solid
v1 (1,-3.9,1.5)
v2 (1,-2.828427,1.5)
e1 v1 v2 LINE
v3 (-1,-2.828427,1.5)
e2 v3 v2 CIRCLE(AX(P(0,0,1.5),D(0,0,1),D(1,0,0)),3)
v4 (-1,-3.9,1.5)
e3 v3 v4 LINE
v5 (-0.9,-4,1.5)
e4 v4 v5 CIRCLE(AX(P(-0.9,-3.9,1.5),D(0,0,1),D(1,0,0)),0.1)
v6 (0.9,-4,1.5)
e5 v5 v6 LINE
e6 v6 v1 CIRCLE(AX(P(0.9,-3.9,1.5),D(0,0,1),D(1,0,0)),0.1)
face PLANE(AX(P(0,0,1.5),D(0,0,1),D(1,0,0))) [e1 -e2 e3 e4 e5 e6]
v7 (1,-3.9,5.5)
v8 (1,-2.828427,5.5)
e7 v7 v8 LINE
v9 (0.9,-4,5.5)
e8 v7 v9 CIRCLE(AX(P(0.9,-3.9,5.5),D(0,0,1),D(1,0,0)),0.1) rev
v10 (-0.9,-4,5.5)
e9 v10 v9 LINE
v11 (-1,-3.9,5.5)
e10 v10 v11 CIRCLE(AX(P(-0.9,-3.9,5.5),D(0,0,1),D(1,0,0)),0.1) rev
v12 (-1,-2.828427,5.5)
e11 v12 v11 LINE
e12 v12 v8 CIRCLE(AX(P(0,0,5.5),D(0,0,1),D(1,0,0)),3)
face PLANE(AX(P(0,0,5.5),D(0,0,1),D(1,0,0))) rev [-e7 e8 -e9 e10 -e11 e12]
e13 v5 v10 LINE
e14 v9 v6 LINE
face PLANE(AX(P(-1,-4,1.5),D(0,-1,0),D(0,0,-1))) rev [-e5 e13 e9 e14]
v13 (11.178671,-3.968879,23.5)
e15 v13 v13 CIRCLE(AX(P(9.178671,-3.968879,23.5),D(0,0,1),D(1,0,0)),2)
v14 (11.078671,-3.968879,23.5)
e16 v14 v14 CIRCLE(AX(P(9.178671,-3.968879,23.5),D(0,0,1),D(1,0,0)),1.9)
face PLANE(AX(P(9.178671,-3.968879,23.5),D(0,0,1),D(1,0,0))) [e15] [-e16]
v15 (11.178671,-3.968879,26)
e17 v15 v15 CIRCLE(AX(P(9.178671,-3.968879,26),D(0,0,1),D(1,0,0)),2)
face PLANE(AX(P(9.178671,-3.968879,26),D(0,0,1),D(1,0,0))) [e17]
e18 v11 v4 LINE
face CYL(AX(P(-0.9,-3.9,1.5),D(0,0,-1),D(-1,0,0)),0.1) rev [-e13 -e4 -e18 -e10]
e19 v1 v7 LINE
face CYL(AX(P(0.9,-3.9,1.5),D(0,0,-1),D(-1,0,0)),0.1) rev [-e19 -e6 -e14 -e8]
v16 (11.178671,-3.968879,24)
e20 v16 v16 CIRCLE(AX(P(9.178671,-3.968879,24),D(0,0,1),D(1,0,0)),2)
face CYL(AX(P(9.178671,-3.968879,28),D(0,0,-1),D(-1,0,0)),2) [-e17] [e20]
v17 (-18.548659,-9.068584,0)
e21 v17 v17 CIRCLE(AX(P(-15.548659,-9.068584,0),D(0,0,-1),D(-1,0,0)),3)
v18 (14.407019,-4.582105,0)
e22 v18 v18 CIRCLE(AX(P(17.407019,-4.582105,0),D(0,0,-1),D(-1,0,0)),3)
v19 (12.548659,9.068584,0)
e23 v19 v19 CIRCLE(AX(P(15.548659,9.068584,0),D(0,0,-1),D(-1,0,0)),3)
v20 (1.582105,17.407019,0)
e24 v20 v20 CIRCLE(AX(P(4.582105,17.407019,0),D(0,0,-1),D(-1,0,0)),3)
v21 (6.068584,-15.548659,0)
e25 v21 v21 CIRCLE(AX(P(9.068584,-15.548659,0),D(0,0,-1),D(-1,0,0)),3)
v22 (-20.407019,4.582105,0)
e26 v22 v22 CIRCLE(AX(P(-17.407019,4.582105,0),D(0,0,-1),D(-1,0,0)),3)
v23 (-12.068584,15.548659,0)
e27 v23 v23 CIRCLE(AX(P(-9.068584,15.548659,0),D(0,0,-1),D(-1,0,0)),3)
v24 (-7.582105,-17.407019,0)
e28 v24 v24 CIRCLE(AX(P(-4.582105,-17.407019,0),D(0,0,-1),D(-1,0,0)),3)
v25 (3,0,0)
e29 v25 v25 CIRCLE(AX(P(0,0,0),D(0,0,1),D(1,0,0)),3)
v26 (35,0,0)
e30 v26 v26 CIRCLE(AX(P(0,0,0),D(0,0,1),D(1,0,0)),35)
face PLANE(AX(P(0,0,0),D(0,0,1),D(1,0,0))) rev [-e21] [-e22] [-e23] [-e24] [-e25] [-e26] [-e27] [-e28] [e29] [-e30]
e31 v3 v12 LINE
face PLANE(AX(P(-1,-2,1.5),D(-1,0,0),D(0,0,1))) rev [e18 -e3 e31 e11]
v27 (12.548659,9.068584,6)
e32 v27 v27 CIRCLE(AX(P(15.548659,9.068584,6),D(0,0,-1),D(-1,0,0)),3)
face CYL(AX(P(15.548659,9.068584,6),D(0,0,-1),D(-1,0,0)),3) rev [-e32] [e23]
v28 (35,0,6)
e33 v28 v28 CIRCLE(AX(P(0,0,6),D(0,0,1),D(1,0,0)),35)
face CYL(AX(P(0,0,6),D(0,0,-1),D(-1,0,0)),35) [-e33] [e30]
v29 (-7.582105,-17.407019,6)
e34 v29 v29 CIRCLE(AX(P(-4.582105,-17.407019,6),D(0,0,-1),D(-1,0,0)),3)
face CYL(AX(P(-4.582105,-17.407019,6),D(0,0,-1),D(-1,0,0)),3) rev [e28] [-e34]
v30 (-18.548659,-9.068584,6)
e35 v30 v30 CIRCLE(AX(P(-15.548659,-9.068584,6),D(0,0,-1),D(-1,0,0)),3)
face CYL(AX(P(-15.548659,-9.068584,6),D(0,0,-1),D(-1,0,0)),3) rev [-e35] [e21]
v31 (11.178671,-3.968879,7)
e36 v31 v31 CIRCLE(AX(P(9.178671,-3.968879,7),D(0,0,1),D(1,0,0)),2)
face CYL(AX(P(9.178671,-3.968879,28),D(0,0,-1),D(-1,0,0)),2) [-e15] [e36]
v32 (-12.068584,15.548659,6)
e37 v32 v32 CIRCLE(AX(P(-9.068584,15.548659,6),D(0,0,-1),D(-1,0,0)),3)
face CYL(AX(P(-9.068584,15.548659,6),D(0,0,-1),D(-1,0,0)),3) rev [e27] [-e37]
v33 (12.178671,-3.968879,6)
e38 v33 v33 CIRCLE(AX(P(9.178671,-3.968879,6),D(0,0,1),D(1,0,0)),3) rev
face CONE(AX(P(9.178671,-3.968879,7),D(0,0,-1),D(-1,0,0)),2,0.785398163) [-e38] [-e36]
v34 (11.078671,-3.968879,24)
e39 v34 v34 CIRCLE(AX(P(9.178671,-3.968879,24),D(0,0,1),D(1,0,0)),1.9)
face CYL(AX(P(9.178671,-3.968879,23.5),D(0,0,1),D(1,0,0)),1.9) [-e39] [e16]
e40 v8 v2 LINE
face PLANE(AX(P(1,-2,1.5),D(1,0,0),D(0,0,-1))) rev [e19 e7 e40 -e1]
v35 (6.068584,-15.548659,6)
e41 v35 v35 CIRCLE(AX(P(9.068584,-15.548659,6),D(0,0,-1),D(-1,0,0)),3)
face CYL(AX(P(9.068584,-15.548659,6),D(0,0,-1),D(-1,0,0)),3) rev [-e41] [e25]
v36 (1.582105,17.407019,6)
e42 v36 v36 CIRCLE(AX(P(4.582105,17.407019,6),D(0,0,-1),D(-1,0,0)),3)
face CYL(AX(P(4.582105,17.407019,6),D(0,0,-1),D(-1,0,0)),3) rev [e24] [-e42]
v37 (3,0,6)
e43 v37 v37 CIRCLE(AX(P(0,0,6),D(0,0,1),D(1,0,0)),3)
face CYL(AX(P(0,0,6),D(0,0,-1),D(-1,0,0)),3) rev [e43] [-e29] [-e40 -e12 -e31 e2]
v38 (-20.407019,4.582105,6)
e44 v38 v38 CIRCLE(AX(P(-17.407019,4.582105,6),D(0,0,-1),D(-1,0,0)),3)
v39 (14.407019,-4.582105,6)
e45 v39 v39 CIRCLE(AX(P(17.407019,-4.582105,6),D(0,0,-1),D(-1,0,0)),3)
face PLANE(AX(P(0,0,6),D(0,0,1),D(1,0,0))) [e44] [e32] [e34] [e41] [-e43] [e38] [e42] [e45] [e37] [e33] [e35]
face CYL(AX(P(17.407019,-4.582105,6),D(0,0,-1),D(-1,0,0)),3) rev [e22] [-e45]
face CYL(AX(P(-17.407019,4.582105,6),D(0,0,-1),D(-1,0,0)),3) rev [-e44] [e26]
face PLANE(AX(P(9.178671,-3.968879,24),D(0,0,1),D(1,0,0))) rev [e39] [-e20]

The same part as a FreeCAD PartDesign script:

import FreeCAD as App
import Part
import Sketcher

V = App.Vector


def edges_at(feature, points):
    """Names of the edges that pass closest to the given points."""
    edges = feature.Shape.Edges
    near = lambda p: min(range(len(edges)), key=lambda i: edges[i].distToShape(Part.Vertex(*p))[0])
    return sorted({f"Edge{near(p) + 1}" for p in points})

doc = App.newDocument("Part")
params = doc.addObject("Spreadsheet::Sheet", "Params")
for row, (alias, value) in enumerate([
    ("sketch1_diameter", "70 mm"),
    ("sketch1_diameter2", "6 mm"),
    ("pad1_length", "6 mm"),
    ("sketch2_diameter", "6 mm"),
    ("sketch3_diameter", "4 mm"),
    ("pad2_length", "22 mm"),
    ("sketch4_diameter", "8 mm"),
    ("pad3_length", "2 mm"),
    ("chamfer_size", "1 mm"),
    ("sketch5_width", "2 mm"),
    ("pocket2_length", "4 mm"),
    ("fillet_radius", "0.1 mm"),
    ("sketch6_diameter", "8 mm"),
    ("pocket3_length", "2 mm"),
    ("sketch7_diameter", "4 mm"),
    ("sketch7_diameter2", "3.8 mm"),
    ("pocket4_length", "0.5 mm"),
], start=1):
    params.set(f"A{row}", alias)
    params.set(f"B{row}", "=" + value)
    params.setAlias(f"B{row}", alias)

body = doc.addObject("PartDesign::Body", "Body")

sketch1 = doc.addObject("Sketcher::SketchObject", "Sketch")
body.addObject(sketch1)
sketch1.AttachmentSupport = (doc.XY_Plane, [""])
sketch1.MapMode = "FlatFace"
sketch1.addGeometry([
    Part.Circle(V(0, 0, 0), V(0, 0, 1), 35),
    Part.Circle(V(0, 0, 0), V(0, 0, 1), 3),
], False)
sketch1.addConstraint([
    Sketcher.Constraint("Coincident", 0, 3, -1, 1),
    Sketcher.Constraint("Coincident", 1, 3, -1, 1),
    Sketcher.Constraint("Diameter", 0, 70.0),
    Sketcher.Constraint("Diameter", 1, 6.0),
])
sketch1.setExpression("Constraints[2]", "Params.sketch1_diameter")
sketch1.setExpression("Constraints[3]", "Params.sketch1_diameter2")
pad1 = doc.addObject("PartDesign::Pad", "Pad")
body.addObject(pad1)
pad1.Profile = sketch1
pad1.setExpression("Length", "Params.pad1_length")

sketch2 = doc.addObject("Sketcher::SketchObject", "Sketch001")
body.addObject(sketch2)
sketch2.AttachmentSupport = (doc.XY_Plane, [""])
sketch2.MapMode = "FlatFace"
sketch2.addGeometry([
    Part.Circle(V(4.6, 17.4, 0), V(0, 0, 1), 3),
    Part.Circle(V(-9.1, 15.5, 0), V(0, 0, 1), 3),
    Part.Circle(V(-17.4, 4.6, 0), V(0, 0, 1), 3),
    Part.Circle(V(-15.5, -9.1, 0), V(0, 0, 1), 3),
    Part.Circle(V(-4.6, -17.4, 0), V(0, 0, 1), 3),
    Part.Circle(V(9.1, -15.5, 0), V(0, 0, 1), 3),
    Part.Circle(V(17.4, -4.6, 0), V(0, 0, 1), 3),
    Part.Circle(V(15.5, 9.1, 0), V(0, 0, 1), 3),
], False)
sketch2.addConstraint([
    Sketcher.Constraint("Equal", 0, 1),
    Sketcher.Constraint("Equal", 1, 2),
    Sketcher.Constraint("Equal", 2, 3),
    Sketcher.Constraint("Equal", 3, 4),
    Sketcher.Constraint("Equal", 4, 5),
    Sketcher.Constraint("Equal", 5, 6),
    Sketcher.Constraint("Equal", 6, 7),
    Sketcher.Constraint("Symmetric", 0, 3, 4, 3, -1, 1),
    Sketcher.Constraint("Symmetric", 1, 3, 5, 3, -1, 1),
    Sketcher.Constraint("Symmetric", 2, 3, 6, 3, -1, 1),
    Sketcher.Constraint("Symmetric", 3, 3, 7, 3, -1, 1),
    Sketcher.Constraint("Diameter", 0, 6.0),
    Sketcher.Constraint("DistanceY", -1, 1, 0, 3, 17.407019),
    Sketcher.Constraint("DistanceY", -1, 1, 1, 3, 15.548659),
    Sketcher.Constraint("DistanceX", 2, 3, -1, 1, 17.407019),
    Sketcher.Constraint("DistanceX", 3, 3, -1, 1, 15.548659),
    Sketcher.Constraint("DistanceX", 1, 3, 0, 3, 13.650689),
    Sketcher.Constraint("DistanceY", 3, 3, 2, 3, 13.650689),
    Sketcher.Constraint("DistanceX", 1, 3, 4, 3, 4.486478),
    Sketcher.Constraint("DistanceY", 3, 3, 6, 3, 4.486478),
])
sketch2.setExpression("Constraints[11]", "Params.sketch2_diameter")
pocket1 = doc.addObject("PartDesign::Pocket", "Pocket")
body.addObject(pocket1)
pocket1.Profile = sketch2
pocket1.Type = "ThroughAll"
pocket1.Reversed = True

sketch3 = doc.addObject("Sketcher::SketchObject", "Sketch002")
body.addObject(sketch3)
sketch3.AttachmentSupport = (doc.XY_Plane, [""])
sketch3.MapMode = "FlatFace"
sketch3.AttachmentOffset = App.Placement(V(0, 0, 6), App.Rotation())
sketch3.addGeometry(Part.Circle(V(9.2, -4, 0), V(0, 0, 1), 2), False)
sketch3.addConstraint([
    Sketcher.Constraint("Diameter", 0, 4.0),
    Sketcher.Constraint("DistanceX", -1, 1, 0, 3, 9.178671),
    Sketcher.Constraint("DistanceY", 0, 3, -1, 1, 3.968879),
])
sketch3.setExpression("Constraints[0]", "Params.sketch3_diameter")
pad2 = doc.addObject("PartDesign::Pad", "Pad001")
body.addObject(pad2)
pad2.Profile = sketch3
pad2.setExpression("Length", "Params.pad2_length")

sketch4 = doc.addObject("Sketcher::SketchObject", "Sketch003")
body.addObject(sketch4)
sketch4.AttachmentSupport = (doc.XY_Plane, [""])
sketch4.MapMode = "FlatFace"
sketch4.AttachmentOffset = App.Placement(V(0, 0, 28), App.Rotation())
sketch4.addGeometry(Part.Circle(V(9.2, -4, 0), V(0, 0, 1), 4), False)
sketch4.addConstraint([
    Sketcher.Constraint("Diameter", 0, 8.0),
    Sketcher.Constraint("DistanceX", -1, 1, 0, 3, 9.178671),
    Sketcher.Constraint("DistanceY", 0, 3, -1, 1, 3.968879),
])
sketch4.setExpression("Constraints[0]", "Params.sketch4_diameter")
pad3 = doc.addObject("PartDesign::Pad", "Pad002")
body.addObject(pad3)
pad3.Profile = sketch4
pad3.setExpression("Length", "Params.pad3_length")
pad3.Reversed = True
doc.recompute()

chamfer = doc.addObject("PartDesign::Chamfer", "Chamfer")
body.addObject(chamfer)
chamfer.Base = (pad3, edges_at(pad3, [(7.179, -3.969, 6)]))
chamfer.setExpression("Size", "Params.chamfer_size")

sketch5 = doc.addObject("Sketcher::SketchObject", "Sketch004")
body.addObject(sketch5)
sketch5.AttachmentSupport = (doc.XY_Plane, [""])
sketch5.MapMode = "FlatFace"
sketch5.AttachmentOffset = App.Placement(V(0, 0, 5.5), App.Rotation())
sketch5.addGeometry([
    Part.LineSegment(V(-1, -2, 0), V(-1, -4, 0)),
    Part.LineSegment(V(-1, -4, 0), V(1, -4, 0)),
    Part.LineSegment(V(1, -4, 0), V(1, -2, 0)),
    Part.LineSegment(V(1, -2, 0), V(-1, -2, 0)),
], False)
sketch5.addConstraint([
    Sketcher.Constraint("Coincident", 0, 2, 1, 1),
    Sketcher.Constraint("Coincident", 1, 2, 2, 1),
    Sketcher.Constraint("Coincident", 2, 2, 3, 1),
    Sketcher.Constraint("Coincident", 3, 2, 0, 1),
    Sketcher.Constraint("Vertical", 0),
    Sketcher.Constraint("Horizontal", 1),
    Sketcher.Constraint("Vertical", 2),
    Sketcher.Constraint("Horizontal", 3),
    Sketcher.Constraint("Equal", 3, 0),
    Sketcher.Constraint("DistanceX", 1, 1, 1, 2, 2.0),
    Sketcher.Constraint("DistanceX", 0, 2, -1, 1, 1.0),
    Sketcher.Constraint("DistanceY", 0, 2, -1, 1, 4.0),
])
sketch5.setExpression("Constraints[9]", "Params.sketch5_width")
pocket2 = doc.addObject("PartDesign::Pocket", "Pocket001")
body.addObject(pocket2)
pocket2.Profile = sketch5
pocket2.setExpression("Length", "Params.pocket2_length")
doc.recompute()

fillet = doc.addObject("PartDesign::Fillet", "Fillet")
body.addObject(fillet)
fillet.Base = (pocket2, edges_at(pocket2, [(1, -4, 3.5), (-1, -4, 3.5)]))
fillet.setExpression("Radius", "Params.fillet_radius")

sketch6 = doc.addObject("Sketcher::SketchObject", "Sketch005")
body.addObject(sketch6)
sketch6.AttachmentSupport = (doc.XY_Plane, [""])
sketch6.MapMode = "FlatFace"
sketch6.AttachmentOffset = App.Placement(V(0, 0, 28), App.Rotation())
sketch6.addGeometry(Part.Circle(V(9.2, -4, 0), V(0, 0, 1), 4), False)
sketch6.addConstraint([
    Sketcher.Constraint("Diameter", 0, 8.0),
    Sketcher.Constraint("DistanceX", -1, 1, 0, 3, 9.178671),
    Sketcher.Constraint("DistanceY", 0, 3, -1, 1, 3.968879),
])
sketch6.setExpression("Constraints[0]", "Params.sketch6_diameter")
pocket3 = doc.addObject("PartDesign::Pocket", "Pocket002")
body.addObject(pocket3)
pocket3.Profile = sketch6
pocket3.setExpression("Length", "Params.pocket3_length")

sketch7 = doc.addObject("Sketcher::SketchObject", "Sketch006")
body.addObject(sketch7)
sketch7.AttachmentSupport = (doc.XY_Plane, [""])
sketch7.MapMode = "FlatFace"
sketch7.AttachmentOffset = App.Placement(V(0, 0, 23.5), App.Rotation())
sketch7.addGeometry([
    Part.Circle(V(9.2, -4, 0), V(0, 0, 1), 2),
    Part.Circle(V(9.2, -4, 0), V(0, 0, 1), 1.9),
], False)
sketch7.addConstraint([
    Sketcher.Constraint("Coincident", 1, 3, 0, 3),
    Sketcher.Constraint("Diameter", 0, 4.0),
    Sketcher.Constraint("Diameter", 1, 3.8),
    Sketcher.Constraint("DistanceX", -1, 1, 0, 3, 9.178671),
    Sketcher.Constraint("DistanceY", 0, 3, -1, 1, 3.968879),
])
sketch7.setExpression("Constraints[1]", "Params.sketch7_diameter")
sketch7.setExpression("Constraints[2]", "Params.sketch7_diameter2")
pocket4 = doc.addObject("PartDesign::Pocket", "Pocket003")
body.addObject(pocket4)
pocket4.Profile = sketch7
pocket4.setExpression("Length", "Params.pocket4_length")
pocket4.Reversed = True

doc.recompute()
